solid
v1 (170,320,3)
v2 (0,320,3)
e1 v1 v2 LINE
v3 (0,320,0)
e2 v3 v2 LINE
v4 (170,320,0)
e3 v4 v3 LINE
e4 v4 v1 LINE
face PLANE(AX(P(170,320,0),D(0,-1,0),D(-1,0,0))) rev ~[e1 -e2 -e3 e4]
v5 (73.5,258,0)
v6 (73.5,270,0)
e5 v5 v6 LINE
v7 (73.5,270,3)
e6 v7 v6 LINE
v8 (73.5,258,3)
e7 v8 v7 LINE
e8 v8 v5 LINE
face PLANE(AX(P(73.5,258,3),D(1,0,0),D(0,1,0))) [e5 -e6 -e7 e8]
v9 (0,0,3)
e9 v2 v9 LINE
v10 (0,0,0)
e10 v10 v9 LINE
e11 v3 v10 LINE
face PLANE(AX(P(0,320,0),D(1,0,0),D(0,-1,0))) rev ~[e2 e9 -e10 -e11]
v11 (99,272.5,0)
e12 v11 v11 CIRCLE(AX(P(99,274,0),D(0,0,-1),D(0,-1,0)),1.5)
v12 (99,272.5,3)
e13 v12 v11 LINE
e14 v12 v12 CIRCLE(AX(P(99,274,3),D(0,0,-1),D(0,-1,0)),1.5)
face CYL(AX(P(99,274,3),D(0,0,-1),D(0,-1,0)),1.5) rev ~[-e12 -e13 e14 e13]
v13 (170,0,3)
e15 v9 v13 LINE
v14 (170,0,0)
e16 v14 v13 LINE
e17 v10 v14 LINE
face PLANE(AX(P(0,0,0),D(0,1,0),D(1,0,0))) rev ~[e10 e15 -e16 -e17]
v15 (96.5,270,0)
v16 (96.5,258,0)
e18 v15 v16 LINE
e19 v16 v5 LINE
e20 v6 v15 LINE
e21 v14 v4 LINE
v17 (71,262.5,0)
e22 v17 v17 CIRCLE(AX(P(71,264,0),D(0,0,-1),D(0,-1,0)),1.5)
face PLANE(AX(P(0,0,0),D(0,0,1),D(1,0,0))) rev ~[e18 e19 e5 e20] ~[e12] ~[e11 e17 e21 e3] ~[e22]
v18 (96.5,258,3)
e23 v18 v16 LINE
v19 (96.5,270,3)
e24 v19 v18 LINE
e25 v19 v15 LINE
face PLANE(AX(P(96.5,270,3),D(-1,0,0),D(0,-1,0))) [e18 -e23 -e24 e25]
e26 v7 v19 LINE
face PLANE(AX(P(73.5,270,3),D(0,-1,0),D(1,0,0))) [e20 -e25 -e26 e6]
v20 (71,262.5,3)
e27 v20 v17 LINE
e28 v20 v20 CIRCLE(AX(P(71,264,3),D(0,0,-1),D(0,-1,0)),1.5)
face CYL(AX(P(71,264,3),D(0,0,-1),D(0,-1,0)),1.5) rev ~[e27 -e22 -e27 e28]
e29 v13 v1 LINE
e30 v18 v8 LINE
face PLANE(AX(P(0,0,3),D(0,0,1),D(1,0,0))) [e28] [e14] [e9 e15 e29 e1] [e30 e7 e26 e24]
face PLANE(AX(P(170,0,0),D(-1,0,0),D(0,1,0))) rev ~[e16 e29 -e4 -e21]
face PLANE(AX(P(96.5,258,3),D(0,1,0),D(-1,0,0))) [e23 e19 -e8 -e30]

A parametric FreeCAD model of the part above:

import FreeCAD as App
import Part
import Sketcher

doc = App.newDocument("Part")
params = doc.addObject("Spreadsheet::Sheet", "Params")
for row, (alias, value) in enumerate([
    ("sketch1_width", "170 mm"),
    ("sketch1_height", "320 mm"),
    ("pad1_length", "3 mm"),
    ("sketch2_width", "23 mm"),
    ("sketch2_height", "12 mm"),
    ("pocket1_length", "3 mm"),
    ("sketch3_diameter", "3 mm"),
    ("hole_diameter", "3 mm"),
    ("hole_depth", "3 mm"),
    ("sketch4_diameter", "3 mm"),
    ("hole2_diameter", "3 mm"),
    ("hole2_depth", "3 mm"),
], start=1):
    params.set(f"A{row}", alias)
    params.set(f"B{row}", "=" + value)
    params.setAlias(f"B{row}", alias)

body = doc.addObject("PartDesign::Body", "Body")

sketch1 = body.newObject("Sketcher::SketchObject", "Sketch")
sketch1.AttachmentSupport = (doc.getObject("XY_Plane"), [""])
sketch1.MapMode = "FlatFace"
sketch1.addGeometry([
    Part.LineSegment(App.Vector(0, 320, 0), App.Vector(0, 0, 0)),
    Part.LineSegment(App.Vector(0, 0, 0), App.Vector(170, 0, 0)),
    Part.LineSegment(App.Vector(170, 0, 0), App.Vector(170, 320, 0)),
    Part.LineSegment(App.Vector(170, 320, 0), App.Vector(0, 320, 0)),
], False)
sketch1.addConstraint([
    Sketcher.Constraint("Coincident", 0, 2, 1, 1),
    Sketcher.Constraint("Coincident", 1, 2, 2, 1),
    Sketcher.Constraint("Coincident", 2, 2, 3, 1),
    Sketcher.Constraint("Coincident", 3, 2, 0, 1),
    Sketcher.Constraint("Vertical", 0),
    Sketcher.Constraint("Horizontal", 1),
    Sketcher.Constraint("Vertical", 2),
    Sketcher.Constraint("Horizontal", 3),
    Sketcher.Constraint("Coincident", 0, 2, -1, 1),
    Sketcher.Constraint("DistanceX", 1, 1, 1, 2, 170.0),
    Sketcher.Constraint("DistanceY", 0, 2, 0, 1, 320.0),
])
sketch1.setExpression("Constraints[9]", "Params.sketch1_width")
sketch1.setExpression("Constraints[10]", "Params.sketch1_height")
pad1 = body.newObject("PartDesign::Pad", "Pad")
pad1.Profile = sketch1
pad1.setExpression("Length", "Params.pad1_length")

sketch2 = body.newObject("Sketcher::SketchObject", "Sketch001")
sketch2.AttachmentSupport = (doc.getObject("XY_Plane"), [""])
sketch2.MapMode = "FlatFace"
sketch2.AttachmentOffset = App.Placement(App.Vector(0, 0, 3), App.Rotation())
sketch2.addGeometry([
    Part.LineSegment(App.Vector(96, 270, 0), App.Vector(74, 270, 0)),
    Part.LineSegment(App.Vector(74, 270, 0), App.Vector(74, 258, 0)),
    Part.LineSegment(App.Vector(74, 258, 0), App.Vector(96, 258, 0)),
    Part.LineSegment(App.Vector(96, 258, 0), App.Vector(96, 270, 0)),
], False)
sketch2.addConstraint([
    Sketcher.Constraint("Coincident", 0, 2, 1, 1),
    Sketcher.Constraint("Coincident", 1, 2, 2, 1),
    Sketcher.Constraint("Coincident", 2, 2, 3, 1),
    Sketcher.Constraint("Coincident", 3, 2, 0, 1),
    Sketcher.Constraint("Horizontal", 0),
    Sketcher.Constraint("Vertical", 1),
    Sketcher.Constraint("Horizontal", 2),
    Sketcher.Constraint("Vertical", 3),
    Sketcher.Constraint("DistanceX", 0, 2, 0, 1, 23.0),
    Sketcher.Constraint("DistanceY", 1, 2, 1, 1, 12.0),
    Sketcher.Constraint("DistanceX", -1, 1, 0, 2, 73.5),
    Sketcher.Constraint("DistanceY", -1, 1, 0, 2, 270.0),
])
sketch2.setExpression("Constraints[8]", "Params.sketch2_width")
sketch2.setExpression("Constraints[9]", "Params.sketch2_height")
pocket1 = body.newObject("PartDesign::Pocket", "Pocket")
pocket1.Profile = sketch2
pocket1.setExpression("Length", "Params.pocket1_length")

sketch3 = body.newObject("Sketcher::SketchObject", "Sketch002")
sketch3.AttachmentSupport = (doc.getObject("XY_Plane"), [""])
sketch3.MapMode = "FlatFace"
sketch3.AttachmentOffset = App.Placement(App.Vector(0, 0, 3), App.Rotation())
sketch3.addGeometry(Part.Circle(App.Vector(71, 264, 0), App.Vector(0, 0, 1), 1.5), False)
sketch3.addConstraint([
    Sketcher.Constraint("Diameter", 0, 3.0),
    Sketcher.Constraint("DistanceX", -1, 1, 0, 3, 71.0),
    Sketcher.Constraint("DistanceY", -1, 1, 0, 3, 264.0),
])
sketch3.setExpression("Constraints[0]", "Params.sketch3_diameter")
doc.recompute()
hole = body.newObject("PartDesign::Hole", "Hole")
hole.Profile = sketch3
hole.ThreadType = "None"
hole.setExpression("Diameter", "Params.hole_diameter")
hole.DepthType = "Dimension"
hole.setExpression("Depth", "Params.hole_depth")
hole.DrillPoint = "Angled"
hole.DrillPointAngle = 118

sketch4 = body.newObject("Sketcher::SketchObject", "Sketch003")
sketch4.AttachmentSupport = (doc.getObject("XY_Plane"), [""])
sketch4.MapMode = "FlatFace"
sketch4.AttachmentOffset = App.Placement(App.Vector(0, 0, 3), App.Rotation())
sketch4.addGeometry(Part.Circle(App.Vector(99, 274, 0), App.Vector(0, 0, 1), 1.5), False)
sketch4.addConstraint([
    Sketcher.Constraint("Diameter", 0, 3.0),
    Sketcher.Constraint("DistanceX", -1, 1, 0, 3, 99.0),
    Sketcher.Constraint("DistanceY", -1, 1, 0, 3, 274.0),
])
sketch4.setExpression("Constraints[0]", "Params.sketch4_diameter")
doc.recompute()
hole2 = body.newObject("PartDesign::Hole", "Hole001")
hole2.Profile = sketch4
hole2.ThreadType = "None"
hole2.setExpression("Diameter", "Params.hole2_diameter")
hole2.DepthType = "Dimension"
hole2.setExpression("Depth", "Params.hole2_depth")
hole2.DrillPoint = "Angled"
hole2.DrillPointAngle = 118

doc.recompute()
